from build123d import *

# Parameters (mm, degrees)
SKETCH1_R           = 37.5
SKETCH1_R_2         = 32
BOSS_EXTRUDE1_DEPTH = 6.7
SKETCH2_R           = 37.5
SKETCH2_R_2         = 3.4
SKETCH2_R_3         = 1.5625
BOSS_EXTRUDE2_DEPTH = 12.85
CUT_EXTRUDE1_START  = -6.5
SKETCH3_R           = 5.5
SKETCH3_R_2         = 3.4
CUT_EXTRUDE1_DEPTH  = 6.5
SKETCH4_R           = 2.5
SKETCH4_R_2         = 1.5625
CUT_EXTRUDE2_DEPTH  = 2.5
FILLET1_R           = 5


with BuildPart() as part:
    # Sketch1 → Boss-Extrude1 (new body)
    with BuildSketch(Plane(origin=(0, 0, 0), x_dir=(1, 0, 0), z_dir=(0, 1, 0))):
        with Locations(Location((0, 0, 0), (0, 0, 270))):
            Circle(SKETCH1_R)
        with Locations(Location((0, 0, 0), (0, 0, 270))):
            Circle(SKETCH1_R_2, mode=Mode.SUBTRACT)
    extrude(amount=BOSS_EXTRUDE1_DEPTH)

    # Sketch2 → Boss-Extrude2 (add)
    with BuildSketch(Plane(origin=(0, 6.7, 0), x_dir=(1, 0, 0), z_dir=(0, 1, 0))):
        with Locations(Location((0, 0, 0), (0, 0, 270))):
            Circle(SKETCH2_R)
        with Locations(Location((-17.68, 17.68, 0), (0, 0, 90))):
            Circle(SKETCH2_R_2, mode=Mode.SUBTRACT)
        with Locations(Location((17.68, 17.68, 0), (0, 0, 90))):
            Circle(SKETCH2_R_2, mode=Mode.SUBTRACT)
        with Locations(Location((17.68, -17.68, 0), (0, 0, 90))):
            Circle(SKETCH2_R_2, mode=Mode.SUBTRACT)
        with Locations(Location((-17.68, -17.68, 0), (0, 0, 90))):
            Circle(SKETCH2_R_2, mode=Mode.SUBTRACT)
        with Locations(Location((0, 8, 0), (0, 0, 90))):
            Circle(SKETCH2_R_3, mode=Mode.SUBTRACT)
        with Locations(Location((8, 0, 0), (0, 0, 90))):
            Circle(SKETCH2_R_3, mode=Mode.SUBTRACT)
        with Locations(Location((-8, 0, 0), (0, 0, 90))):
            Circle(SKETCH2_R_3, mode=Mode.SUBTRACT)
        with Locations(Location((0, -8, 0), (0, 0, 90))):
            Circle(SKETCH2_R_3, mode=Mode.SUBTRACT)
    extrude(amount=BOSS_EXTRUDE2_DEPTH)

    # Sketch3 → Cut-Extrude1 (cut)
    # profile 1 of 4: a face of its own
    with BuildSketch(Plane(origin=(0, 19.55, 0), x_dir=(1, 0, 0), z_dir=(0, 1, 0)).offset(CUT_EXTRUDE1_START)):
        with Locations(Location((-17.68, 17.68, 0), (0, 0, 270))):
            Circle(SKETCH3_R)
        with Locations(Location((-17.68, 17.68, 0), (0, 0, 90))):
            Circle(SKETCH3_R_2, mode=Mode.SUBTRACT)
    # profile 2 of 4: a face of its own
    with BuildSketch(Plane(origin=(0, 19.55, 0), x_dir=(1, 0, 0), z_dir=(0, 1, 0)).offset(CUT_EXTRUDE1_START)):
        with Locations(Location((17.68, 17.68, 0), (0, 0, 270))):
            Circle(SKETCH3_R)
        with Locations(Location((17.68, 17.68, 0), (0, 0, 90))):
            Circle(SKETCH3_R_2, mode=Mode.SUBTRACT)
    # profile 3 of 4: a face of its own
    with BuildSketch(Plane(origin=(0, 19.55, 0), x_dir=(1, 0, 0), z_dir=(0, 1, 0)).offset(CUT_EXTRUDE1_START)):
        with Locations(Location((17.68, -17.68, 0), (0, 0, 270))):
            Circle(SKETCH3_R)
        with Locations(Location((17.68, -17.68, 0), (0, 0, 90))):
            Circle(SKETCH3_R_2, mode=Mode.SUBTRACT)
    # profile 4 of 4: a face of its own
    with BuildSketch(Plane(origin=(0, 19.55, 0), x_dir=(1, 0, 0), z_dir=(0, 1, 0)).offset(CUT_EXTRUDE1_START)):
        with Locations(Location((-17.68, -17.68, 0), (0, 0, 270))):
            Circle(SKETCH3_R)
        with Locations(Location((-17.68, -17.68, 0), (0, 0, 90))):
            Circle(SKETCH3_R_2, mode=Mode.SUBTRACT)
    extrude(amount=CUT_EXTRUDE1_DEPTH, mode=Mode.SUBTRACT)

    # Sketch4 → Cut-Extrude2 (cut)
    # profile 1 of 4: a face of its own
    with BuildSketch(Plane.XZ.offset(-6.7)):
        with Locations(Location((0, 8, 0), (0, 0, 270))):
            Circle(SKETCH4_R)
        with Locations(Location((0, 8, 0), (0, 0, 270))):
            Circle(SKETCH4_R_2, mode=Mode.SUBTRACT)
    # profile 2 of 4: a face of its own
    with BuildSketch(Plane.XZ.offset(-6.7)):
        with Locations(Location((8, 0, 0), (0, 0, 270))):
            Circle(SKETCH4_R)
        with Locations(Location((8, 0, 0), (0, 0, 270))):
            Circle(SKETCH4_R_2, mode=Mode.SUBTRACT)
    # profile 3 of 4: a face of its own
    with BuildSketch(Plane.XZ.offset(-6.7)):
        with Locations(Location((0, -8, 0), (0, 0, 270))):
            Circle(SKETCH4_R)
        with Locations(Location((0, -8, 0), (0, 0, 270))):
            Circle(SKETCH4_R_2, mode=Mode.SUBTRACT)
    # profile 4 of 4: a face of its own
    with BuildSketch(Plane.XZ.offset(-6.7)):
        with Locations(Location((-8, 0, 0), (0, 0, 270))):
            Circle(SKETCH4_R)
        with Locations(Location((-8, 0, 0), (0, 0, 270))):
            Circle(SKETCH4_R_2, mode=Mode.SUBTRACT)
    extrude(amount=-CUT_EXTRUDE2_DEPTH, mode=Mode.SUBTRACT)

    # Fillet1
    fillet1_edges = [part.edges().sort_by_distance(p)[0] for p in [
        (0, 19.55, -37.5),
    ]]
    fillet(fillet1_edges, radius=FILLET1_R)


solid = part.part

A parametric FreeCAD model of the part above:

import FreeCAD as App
import Part
import Sketcher
Q = App.Units.Quantity


def edges_at(feature, points):
    """Names of the edges that pass closest to the given points."""
    edges = feature.Shape.Edges
    near = lambda p: min(range(len(edges)), key=lambda i: edges[i].distToShape(Part.Vertex(*p))[0])
    return sorted({f"Edge{near(p) + 1}" for p in points})

doc = App.newDocument("Part")
body = doc.addObject("PartDesign::Body", "Body")

# Sketch on XZ plane
sketch1 = body.newObject("Sketcher::SketchObject", "Sketch")
sketch1.AttachmentSupport = (doc.getObject("XZ_Plane"), [""])
sketch1.MapMode = "FlatFace"
sketch1.addGeometry(Part.Circle(App.Vector(0, 0, 0), App.Vector(0, 0, 1), 37.5), False)
sketch1.addGeometry(Part.Circle(App.Vector(0, 0, 0), App.Vector(0, 0, 1), 32), False)
sketch1.addConstraint(Sketcher.Constraint("Coincident", 0, 3, -1, 1))
sketch1.addConstraint(Sketcher.Constraint("Coincident", 1, 3, -1, 1))
sketch1.addConstraint(Sketcher.Constraint("Diameter", 0, Q("75 mm")))
sketch1.addConstraint(Sketcher.Constraint("Diameter", 1, Q("64 mm")))
pad1 = body.newObject("PartDesign::Pad", "Pad")
pad1.Profile = sketch1
pad1.Length = 6.7
pad1.Reversed = True

# Sketch on XZ plane
sketch2 = body.newObject("Sketcher::SketchObject", "Sketch001")
sketch2.AttachmentSupport = (doc.getObject("XZ_Plane"), [""])
sketch2.MapMode = "FlatFace"
sketch2.AttachmentOffset = App.Placement(App.Vector(0, 0, -6.7), App.Rotation())
sketch2.addGeometry(Part.Circle(App.Vector(0, 0, 0), App.Vector(0, 0, 1), 37.5), False)
sketch2.addGeometry(Part.Circle(App.Vector(-17.68, -17.68, 0), App.Vector(0, 0, 1), 3.4), False)
sketch2.addGeometry(Part.Circle(App.Vector(0, -8, 0), App.Vector(0, 0, 1), 1.5625), False)
sketch2.addGeometry(Part.Circle(App.Vector(-17.68, 17.68, 0), App.Vector(0, 0, 1), 3.4), False)
sketch2.addGeometry(Part.Circle(App.Vector(-8, 0, 0), App.Vector(0, 0, 1), 1.5625), False)
sketch2.addGeometry(Part.Circle(App.Vector(0, 8, 0), App.Vector(0, 0, 1), 1.5625), False)
sketch2.addGeometry(Part.Circle(App.Vector(8, 0, 0), App.Vector(0, 0, 1), 1.5625), False)
sketch2.addGeometry(Part.Circle(App.Vector(17.68, -17.68, 0), App.Vector(0, 0, 1), 3.4), False)
sketch2.addGeometry(Part.Circle(App.Vector(17.68, 17.68, 0), App.Vector(0, 0, 1), 3.4), False)
sketch2.addConstraint(Sketcher.Constraint("Coincident", 0, 3, -1, 1))
sketch2.addConstraint(Sketcher.Constraint("Equal", 1, 3))
sketch2.addConstraint(Sketcher.Constraint("Equal", 2, 4))
sketch2.addConstraint(Sketcher.Constraint("Equal", 4, 5))
sketch2.addConstraint(Sketcher.Constraint("Equal", 5, 6))
sketch2.addConstraint(Sketcher.Constraint("Equal", 3, 7))
sketch2.addConstraint(Sketcher.Constraint("Equal", 7, 8))
sketch2.addConstraint(Sketcher.Constraint("Symmetric", 2, 3, 5, 3, -1, 1))
sketch2.addConstraint(Sketcher.Constraint("Symmetric", 4, 3, 6, 3, -1, 1))
sketch2.addConstraint(Sketcher.Constraint("Symmetric", 3, 3, 7, 3, -1, 1))
sketch2.addConstraint(Sketcher.Constraint("Symmetric", 1, 3, 8, 3, -1, 1))
sketch2.addConstraint(Sketcher.Constraint("Symmetric", 1, 3, 7, 3, -2))
sketch2.addConstraint(Sketcher.Constraint("PointOnObject", 2, 3, -2))
sketch2.addConstraint(Sketcher.Constraint("PointOnObject", 4, 3, -1))
sketch2.addConstraint(Sketcher.Constraint("Diameter", 0, Q("75 mm")))
sketch2.addConstraint(Sketcher.Constraint("Diameter", 1, Q("6.8 mm")))
sketch2.addConstraint(Sketcher.Constraint("Diameter", 2, Q("3.125 mm")))
sketch2.addConstraint(Sketcher.Constraint("DistanceY", 2, 3, -1, 1, Q("8 mm")))
sketch2.addConstraint(Sketcher.Constraint("DistanceX", 4, 3, -1, 1, Q("8 mm")))
sketch2.addConstraint(Sketcher.Constraint("DistanceX", 1, 3, -1, 1, Q("17.68 mm")))
sketch2.addConstraint(Sketcher.Constraint("DistanceY", 1, 3, -1, 1, Q("17.68 mm")))
pad2 = body.newObject("PartDesign::Pad", "Pad001")
pad2.Profile = sketch2
pad2.Length = 12.85
pad2.Reversed = True

# Sketch on XZ plane
sketch3 = body.newObject("Sketcher::SketchObject", "Sketch002")
sketch3.AttachmentSupport = (doc.getObject("XZ_Plane"), [""])
sketch3.MapMode = "FlatFace"
sketch3.AttachmentOffset = App.Placement(App.Vector(0, 0, -13.05), App.Rotation())
sketch3.addGeometry(Part.Circle(App.Vector(-17.68, -17.68, 0), App.Vector(0, 0, 1), 5.5), False)
sketch3.addGeometry(Part.Circle(App.Vector(-17.68, -17.68, 0), App.Vector(0, 0, 1), 3.4), False)
sketch3.addGeometry(Part.Circle(App.Vector(17.68, -17.68, 0), App.Vector(0, 0, 1), 5.5), False)
sketch3.addGeometry(Part.Circle(App.Vector(17.68, -17.68, 0), App.Vector(0, 0, 1), 3.4), False)
sketch3.addGeometry(Part.Circle(App.Vector(17.68, 17.68, 0), App.Vector(0, 0, 1), 5.5), False)
sketch3.addGeometry(Part.Circle(App.Vector(17.68, 17.68, 0), App.Vector(0, 0, 1), 3.4), False)
sketch3.addGeometry(Part.Circle(App.Vector(-17.68, 17.68, 0), App.Vector(0, 0, 1), 5.5), False)
sketch3.addGeometry(Part.Circle(App.Vector(-17.68, 17.68, 0), App.Vector(0, 0, 1), 3.4), False)
sketch3.addConstraint(Sketcher.Constraint("Coincident", 1, 3, 0, 3))
sketch3.addConstraint(Sketcher.Constraint("Coincident", 3, 3, 2, 3))
sketch3.addConstraint(Sketcher.Constraint("Coincident", 5, 3, 4, 3))
sketch3.addConstraint(Sketcher.Constraint("Coincident", 7, 3, 6, 3))
sketch3.addConstraint(Sketcher.Constraint("Equal", 0, 2))
sketch3.addConstraint(Sketcher.Constraint("Equal", 1, 3))
sketch3.addConstraint(Sketcher.Constraint("Equal", 2, 4))
sketch3.addConstraint(Sketcher.Constraint("Equal", 3, 5))
sketch3.addConstraint(Sketcher.Constraint("Equal", 4, 6))
sketch3.addConstraint(Sketcher.Constraint("Equal", 5, 7))
sketch3.addConstraint(Sketcher.Constraint("Symmetric", 0, 3, 4, 3, -1, 1))
sketch3.addConstraint(Sketcher.Constraint("Symmetric", 2, 3, 6, 3, -1, 1))
sketch3.addConstraint(Sketcher.Constraint("Symmetric", 0, 3, 2, 3, -2))
sketch3.addConstraint(Sketcher.Constraint("Diameter", 0, Q("11 mm")))
sketch3.addConstraint(Sketcher.Constraint("Diameter", 1, Q("6.8 mm")))
sketch3.addConstraint(Sketcher.Constraint("DistanceX", 0, 3, -1, 1, Q("17.68 mm")))
sketch3.addConstraint(Sketcher.Constraint("DistanceY", 0, 3, -1, 1, Q("17.68 mm")))
pocket1 = body.newObject("PartDesign::Pocket", "Pocket")
pocket1.Profile = sketch3
pocket1.Length = 6.5

# Sketch on XZ plane
sketch4 = body.newObject("Sketcher::SketchObject", "Sketch003")
sketch4.AttachmentSupport = (doc.getObject("XZ_Plane"), [""])
sketch4.MapMode = "FlatFace"
sketch4.AttachmentOffset = App.Placement(App.Vector(0, 0, -6.7), App.Rotation())
sketch4.addGeometry(Part.Circle(App.Vector(0, 8, 0), App.Vector(0, 0, 1), 2.5), False)
sketch4.addGeometry(Part.Circle(App.Vector(0, 8, 0), App.Vector(0, 0, 1), 1.5625), False)
sketch4.addGeometry(Part.Circle(App.Vector(8, 0, 0), App.Vector(0, 0, 1), 2.5), False)
sketch4.addGeometry(Part.Circle(App.Vector(8, 0, 0), App.Vector(0, 0, 1), 1.5625), False)
sketch4.addGeometry(Part.Circle(App.Vector(0, -8, 0), App.Vector(0, 0, 1), 2.5), False)
sketch4.addGeometry(Part.Circle(App.Vector(0, -8, 0), App.Vector(0, 0, 1), 1.5625), False)
sketch4.addGeometry(Part.Circle(App.Vector(-8, 0, 0), App.Vector(0, 0, 1), 2.5), False)
sketch4.addGeometry(Part.Circle(App.Vector(-8, 0, 0), App.Vector(0, 0, 1), 1.5625), False)
sketch4.addConstraint(Sketcher.Constraint("Coincident", 1, 3, 0, 3))
sketch4.addConstraint(Sketcher.Constraint("Coincident", 3, 3, 2, 3))
sketch4.addConstraint(Sketcher.Constraint("Coincident", 5, 3, 4, 3))
sketch4.addConstraint(Sketcher.Constraint("Coincident", 7, 3, 6, 3))
sketch4.addConstraint(Sketcher.Constraint("Equal", 0, 2))
sketch4.addConstraint(Sketcher.Constraint("Equal", 1, 3))
sketch4.addConstraint(Sketcher.Constraint("Equal", 2, 4))
sketch4.addConstraint(Sketcher.Constraint("Equal", 3, 5))
sketch4.addConstraint(Sketcher.Constraint("Equal", 4, 6))
sketch4.addConstraint(Sketcher.Constraint("Equal", 5, 7))
sketch4.addConstraint(Sketcher.Constraint("Symmetric", 0, 3, 4, 3, -1, 1))
sketch4.addConstraint(Sketcher.Constraint("Symmetric", 2, 3, 6, 3, -1, 1))
sketch4.addConstraint(Sketcher.Constraint("PointOnObject", 0, 3, -2))
sketch4.addConstraint(Sketcher.Constraint("PointOnObject", 2, 3, -1))
sketch4.addConstraint(Sketcher.Constraint("Diameter", 0, Q("5 mm")))
sketch4.addConstraint(Sketcher.Constraint("Diameter", 1, Q("3.125 mm")))
sketch4.addConstraint(Sketcher.Constraint("DistanceY", -1, 1, 0, 3, Q("8 mm")))
sketch4.addConstraint(Sketcher.Constraint("DistanceX", -1, 1, 2, 3, Q("8 mm")))
pocket2 = body.newObject("PartDesign::Pocket", "Pocket001")
pocket2.Profile = sketch4
pocket2.Length = 2.5
doc.recompute()

fillet = body.newObject("PartDesign::Fillet", "Fillet")
fillet.Base = (pocket2, edges_at(pocket2, [(0, 19.55, -37.5)]))
fillet.Radius = 5

doc.recompute()
